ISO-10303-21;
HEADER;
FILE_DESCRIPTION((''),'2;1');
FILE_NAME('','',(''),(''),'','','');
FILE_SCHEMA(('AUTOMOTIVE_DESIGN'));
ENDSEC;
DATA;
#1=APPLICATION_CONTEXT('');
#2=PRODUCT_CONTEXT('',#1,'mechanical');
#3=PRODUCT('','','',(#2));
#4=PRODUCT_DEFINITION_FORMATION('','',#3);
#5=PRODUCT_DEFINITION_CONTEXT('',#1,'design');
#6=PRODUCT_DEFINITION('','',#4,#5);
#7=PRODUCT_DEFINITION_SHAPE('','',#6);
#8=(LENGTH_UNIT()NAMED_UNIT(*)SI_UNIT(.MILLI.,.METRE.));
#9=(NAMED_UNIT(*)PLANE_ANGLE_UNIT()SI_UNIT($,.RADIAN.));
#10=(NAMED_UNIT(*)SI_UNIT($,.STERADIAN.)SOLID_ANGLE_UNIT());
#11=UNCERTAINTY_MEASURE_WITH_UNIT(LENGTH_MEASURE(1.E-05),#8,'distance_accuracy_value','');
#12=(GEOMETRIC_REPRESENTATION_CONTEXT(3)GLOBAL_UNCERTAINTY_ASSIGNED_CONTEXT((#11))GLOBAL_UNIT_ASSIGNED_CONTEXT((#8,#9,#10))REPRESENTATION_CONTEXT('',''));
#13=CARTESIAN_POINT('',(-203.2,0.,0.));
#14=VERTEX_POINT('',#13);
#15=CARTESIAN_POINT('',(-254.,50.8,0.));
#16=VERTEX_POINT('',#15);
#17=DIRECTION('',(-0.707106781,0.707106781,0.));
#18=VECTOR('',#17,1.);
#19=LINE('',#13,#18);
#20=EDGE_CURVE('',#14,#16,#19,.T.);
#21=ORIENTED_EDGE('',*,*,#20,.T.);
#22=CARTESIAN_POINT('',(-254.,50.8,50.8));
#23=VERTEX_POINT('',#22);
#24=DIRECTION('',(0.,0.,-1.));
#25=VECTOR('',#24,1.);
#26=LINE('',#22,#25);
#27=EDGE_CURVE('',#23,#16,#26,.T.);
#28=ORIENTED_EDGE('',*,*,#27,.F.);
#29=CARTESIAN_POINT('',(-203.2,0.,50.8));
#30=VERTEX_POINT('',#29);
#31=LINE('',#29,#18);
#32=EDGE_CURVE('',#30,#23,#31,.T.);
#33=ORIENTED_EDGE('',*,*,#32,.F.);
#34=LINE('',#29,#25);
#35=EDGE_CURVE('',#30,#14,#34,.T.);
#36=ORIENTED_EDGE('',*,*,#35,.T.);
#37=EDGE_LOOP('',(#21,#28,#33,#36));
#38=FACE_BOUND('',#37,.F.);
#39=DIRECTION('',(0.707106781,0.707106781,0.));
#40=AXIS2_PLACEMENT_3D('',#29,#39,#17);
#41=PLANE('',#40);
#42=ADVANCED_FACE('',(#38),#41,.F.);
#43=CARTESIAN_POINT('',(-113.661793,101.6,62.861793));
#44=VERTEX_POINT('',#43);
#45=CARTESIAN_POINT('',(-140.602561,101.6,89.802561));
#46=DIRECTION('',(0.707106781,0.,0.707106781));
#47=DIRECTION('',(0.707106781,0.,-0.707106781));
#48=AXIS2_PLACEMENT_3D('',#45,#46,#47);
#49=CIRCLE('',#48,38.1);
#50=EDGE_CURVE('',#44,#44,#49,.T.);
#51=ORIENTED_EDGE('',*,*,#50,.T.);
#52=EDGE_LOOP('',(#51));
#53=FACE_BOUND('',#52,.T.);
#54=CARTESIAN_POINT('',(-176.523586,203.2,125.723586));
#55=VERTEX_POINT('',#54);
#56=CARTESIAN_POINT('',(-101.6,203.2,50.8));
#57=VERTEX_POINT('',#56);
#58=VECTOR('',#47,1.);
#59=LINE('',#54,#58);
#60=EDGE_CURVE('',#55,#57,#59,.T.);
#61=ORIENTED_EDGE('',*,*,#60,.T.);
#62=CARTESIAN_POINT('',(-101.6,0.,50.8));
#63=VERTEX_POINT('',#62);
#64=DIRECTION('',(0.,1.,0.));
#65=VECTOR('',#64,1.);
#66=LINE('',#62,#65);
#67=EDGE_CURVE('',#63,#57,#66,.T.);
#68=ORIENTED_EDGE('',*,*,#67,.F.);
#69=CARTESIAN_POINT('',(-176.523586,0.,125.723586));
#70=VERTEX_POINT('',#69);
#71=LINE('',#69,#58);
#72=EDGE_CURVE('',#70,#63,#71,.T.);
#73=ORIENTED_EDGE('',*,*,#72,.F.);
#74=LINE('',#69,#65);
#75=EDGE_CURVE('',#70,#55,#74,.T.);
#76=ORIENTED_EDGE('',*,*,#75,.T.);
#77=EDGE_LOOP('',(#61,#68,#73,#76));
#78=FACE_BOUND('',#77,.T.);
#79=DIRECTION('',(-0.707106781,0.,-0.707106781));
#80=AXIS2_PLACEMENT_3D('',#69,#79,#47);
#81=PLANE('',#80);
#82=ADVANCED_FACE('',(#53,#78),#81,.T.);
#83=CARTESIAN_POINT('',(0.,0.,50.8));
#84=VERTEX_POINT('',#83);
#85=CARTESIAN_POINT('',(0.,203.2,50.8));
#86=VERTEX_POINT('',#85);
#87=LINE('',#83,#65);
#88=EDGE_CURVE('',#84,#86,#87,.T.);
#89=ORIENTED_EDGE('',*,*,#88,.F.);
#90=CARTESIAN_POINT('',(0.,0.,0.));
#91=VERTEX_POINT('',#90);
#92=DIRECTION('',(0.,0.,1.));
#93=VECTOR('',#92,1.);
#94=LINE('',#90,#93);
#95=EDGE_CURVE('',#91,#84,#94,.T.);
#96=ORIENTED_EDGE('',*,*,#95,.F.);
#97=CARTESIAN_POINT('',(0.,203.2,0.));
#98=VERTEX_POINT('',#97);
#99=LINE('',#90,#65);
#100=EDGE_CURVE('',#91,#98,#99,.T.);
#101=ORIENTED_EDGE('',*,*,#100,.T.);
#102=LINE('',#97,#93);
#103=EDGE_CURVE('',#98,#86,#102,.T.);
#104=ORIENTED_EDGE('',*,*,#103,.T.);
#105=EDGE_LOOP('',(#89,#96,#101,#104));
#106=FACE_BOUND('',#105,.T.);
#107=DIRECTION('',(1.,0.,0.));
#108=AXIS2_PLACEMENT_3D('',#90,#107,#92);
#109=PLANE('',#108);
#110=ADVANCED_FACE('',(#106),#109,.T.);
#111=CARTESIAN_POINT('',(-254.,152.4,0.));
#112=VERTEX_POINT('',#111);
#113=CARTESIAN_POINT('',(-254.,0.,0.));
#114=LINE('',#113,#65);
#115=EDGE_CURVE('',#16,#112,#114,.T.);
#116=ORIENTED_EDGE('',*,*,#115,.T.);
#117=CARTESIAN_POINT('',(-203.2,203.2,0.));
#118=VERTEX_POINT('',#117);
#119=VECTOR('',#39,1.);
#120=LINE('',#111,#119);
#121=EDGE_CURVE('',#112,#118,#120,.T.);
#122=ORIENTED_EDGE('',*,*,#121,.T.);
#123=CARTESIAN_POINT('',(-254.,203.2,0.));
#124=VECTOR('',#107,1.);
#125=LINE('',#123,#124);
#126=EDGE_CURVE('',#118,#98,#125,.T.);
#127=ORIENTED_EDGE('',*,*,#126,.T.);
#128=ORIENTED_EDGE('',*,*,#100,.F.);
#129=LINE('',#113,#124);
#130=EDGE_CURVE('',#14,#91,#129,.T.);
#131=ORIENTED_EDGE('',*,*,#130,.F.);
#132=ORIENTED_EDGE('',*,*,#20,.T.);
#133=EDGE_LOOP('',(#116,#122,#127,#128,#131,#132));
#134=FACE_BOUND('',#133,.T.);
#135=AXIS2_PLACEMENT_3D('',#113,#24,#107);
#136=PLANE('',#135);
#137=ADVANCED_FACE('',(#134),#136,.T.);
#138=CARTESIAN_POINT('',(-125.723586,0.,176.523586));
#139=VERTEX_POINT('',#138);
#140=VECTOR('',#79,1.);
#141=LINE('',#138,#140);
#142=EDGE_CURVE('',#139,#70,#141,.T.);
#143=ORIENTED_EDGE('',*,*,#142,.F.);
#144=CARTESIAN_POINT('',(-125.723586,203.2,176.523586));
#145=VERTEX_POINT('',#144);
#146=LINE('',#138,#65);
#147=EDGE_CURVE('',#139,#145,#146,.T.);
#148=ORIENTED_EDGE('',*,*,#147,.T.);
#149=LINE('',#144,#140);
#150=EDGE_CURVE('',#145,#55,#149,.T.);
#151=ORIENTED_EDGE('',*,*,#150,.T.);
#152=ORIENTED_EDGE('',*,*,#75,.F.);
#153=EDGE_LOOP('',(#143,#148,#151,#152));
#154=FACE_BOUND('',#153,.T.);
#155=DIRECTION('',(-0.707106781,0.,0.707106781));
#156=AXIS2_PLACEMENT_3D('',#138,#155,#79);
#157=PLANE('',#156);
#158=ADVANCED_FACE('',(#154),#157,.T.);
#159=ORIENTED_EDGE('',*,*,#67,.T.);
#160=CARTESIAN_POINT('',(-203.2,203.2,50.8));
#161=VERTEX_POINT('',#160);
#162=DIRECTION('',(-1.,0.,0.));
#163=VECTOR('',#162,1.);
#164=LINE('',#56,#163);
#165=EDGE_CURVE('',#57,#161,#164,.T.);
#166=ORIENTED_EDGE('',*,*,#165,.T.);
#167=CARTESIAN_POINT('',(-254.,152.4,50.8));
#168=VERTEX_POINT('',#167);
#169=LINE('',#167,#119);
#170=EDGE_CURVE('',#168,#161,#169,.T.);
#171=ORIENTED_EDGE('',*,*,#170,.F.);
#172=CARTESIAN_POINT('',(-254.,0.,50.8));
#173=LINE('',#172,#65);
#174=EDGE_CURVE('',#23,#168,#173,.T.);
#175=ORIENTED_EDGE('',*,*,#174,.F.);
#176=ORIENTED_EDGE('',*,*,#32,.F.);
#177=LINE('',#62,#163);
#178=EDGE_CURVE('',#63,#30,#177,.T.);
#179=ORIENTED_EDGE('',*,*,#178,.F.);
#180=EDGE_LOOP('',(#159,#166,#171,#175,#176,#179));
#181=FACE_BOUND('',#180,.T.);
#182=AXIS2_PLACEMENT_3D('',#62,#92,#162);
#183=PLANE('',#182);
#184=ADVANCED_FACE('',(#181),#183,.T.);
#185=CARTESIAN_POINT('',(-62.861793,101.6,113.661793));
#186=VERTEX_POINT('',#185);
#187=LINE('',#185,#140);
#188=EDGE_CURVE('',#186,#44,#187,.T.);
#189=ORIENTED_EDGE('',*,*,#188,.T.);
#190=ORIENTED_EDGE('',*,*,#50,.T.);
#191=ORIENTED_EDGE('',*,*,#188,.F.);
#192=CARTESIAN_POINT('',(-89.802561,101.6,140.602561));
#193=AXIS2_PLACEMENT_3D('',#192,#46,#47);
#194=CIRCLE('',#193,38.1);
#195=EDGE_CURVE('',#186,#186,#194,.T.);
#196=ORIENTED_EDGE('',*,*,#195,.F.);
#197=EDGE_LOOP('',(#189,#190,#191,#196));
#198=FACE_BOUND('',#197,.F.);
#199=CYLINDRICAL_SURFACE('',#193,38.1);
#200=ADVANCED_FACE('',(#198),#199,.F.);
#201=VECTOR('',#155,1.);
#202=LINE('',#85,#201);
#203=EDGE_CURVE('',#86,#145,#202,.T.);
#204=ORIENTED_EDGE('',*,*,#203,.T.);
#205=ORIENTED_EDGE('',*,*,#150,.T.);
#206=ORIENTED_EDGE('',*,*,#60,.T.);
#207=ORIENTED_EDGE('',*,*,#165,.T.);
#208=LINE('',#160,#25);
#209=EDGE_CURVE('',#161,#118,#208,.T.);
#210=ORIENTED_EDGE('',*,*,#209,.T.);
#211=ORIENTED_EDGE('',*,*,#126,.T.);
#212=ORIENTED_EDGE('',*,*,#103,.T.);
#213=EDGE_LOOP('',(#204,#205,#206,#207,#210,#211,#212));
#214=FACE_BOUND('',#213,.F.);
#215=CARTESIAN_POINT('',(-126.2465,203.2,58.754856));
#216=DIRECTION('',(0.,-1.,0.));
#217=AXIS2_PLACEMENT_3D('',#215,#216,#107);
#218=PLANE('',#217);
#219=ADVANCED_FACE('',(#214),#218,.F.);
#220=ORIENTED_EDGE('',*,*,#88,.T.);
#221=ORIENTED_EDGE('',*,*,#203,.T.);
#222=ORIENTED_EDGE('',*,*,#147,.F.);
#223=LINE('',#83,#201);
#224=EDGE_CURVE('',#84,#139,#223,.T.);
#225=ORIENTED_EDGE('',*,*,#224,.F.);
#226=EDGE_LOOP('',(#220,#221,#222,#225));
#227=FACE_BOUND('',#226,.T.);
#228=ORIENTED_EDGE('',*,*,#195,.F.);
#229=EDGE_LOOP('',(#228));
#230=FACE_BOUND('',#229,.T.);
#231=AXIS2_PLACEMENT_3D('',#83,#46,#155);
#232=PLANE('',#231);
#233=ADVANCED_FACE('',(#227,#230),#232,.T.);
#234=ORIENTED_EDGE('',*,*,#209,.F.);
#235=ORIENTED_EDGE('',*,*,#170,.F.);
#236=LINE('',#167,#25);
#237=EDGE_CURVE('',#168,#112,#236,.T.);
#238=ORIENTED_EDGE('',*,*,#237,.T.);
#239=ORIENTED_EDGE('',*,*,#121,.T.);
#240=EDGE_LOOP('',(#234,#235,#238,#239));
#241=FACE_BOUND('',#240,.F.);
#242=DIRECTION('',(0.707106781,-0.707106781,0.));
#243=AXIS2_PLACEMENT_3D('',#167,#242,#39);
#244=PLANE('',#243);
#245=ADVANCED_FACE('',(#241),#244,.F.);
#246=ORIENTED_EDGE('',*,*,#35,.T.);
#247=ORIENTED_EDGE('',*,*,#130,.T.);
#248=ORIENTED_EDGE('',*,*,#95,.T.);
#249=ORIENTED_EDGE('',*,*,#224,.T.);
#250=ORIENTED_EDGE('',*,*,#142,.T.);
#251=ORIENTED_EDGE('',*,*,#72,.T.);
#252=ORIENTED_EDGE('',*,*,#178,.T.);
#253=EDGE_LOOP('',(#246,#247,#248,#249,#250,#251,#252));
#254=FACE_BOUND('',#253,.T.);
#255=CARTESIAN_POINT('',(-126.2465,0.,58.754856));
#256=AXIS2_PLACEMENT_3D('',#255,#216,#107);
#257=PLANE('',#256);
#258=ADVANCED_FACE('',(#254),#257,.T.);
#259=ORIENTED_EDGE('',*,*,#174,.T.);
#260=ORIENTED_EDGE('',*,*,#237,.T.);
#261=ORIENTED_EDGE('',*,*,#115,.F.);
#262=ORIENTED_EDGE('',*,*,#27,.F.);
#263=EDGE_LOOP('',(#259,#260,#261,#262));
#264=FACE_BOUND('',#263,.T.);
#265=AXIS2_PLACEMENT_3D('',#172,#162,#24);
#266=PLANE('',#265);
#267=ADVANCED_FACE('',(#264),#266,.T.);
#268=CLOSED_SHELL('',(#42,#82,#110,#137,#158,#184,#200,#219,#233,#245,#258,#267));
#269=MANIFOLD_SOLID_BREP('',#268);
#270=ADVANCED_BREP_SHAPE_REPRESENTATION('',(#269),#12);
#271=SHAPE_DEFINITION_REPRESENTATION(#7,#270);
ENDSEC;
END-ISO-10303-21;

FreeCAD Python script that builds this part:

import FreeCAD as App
import Part
import Sketcher

V = App.Vector
Q = App.Units.Quantity


def add_polygon(sketch, points):
    """Adds a closed chain of lines whose ends are joined by coincident constraints."""
    first, n = sketch.GeometryCount, len(points)
    for a, b in zip(points, points[1:] + points[:1]):
        sketch.addGeometry(Part.LineSegment(App.Vector(*a, 0), App.Vector(*b, 0)), False)
    for i in range(n):
        sketch.addConstraint(Sketcher.Constraint("Coincident", first + i, 2, first + (i + 1) % n, 1))

doc = App.newDocument("Part")
body = doc.addObject("PartDesign::Body", "Body")

sketch1 = body.newObject("Sketcher::SketchObject", "Sketch")
sketch1.AttachmentSupport = (doc.getObject("XZ_Plane"), [""])
sketch1.MapMode = "FlatFace"
add_polygon(sketch1, [(-254, 0), (0, 0), (0, 51), (-126, 177), (-177, 126), (-102, 51), (-254, 51)])
sketch1.addConstraint([
    Sketcher.Constraint("Horizontal", 0),
    Sketcher.Constraint("Vertical", 1),
    Sketcher.Constraint("Horizontal", 5),
    Sketcher.Constraint("Vertical", 6),
    Sketcher.Constraint("Coincident", 0, 2, -1, 1),
    Sketcher.Constraint("Perpendicular", 2, 3),
    Sketcher.Constraint("Perpendicular", 3, 4),
    Sketcher.Constraint("Horizontal", 1, 2, 4, 2),
    Sketcher.Constraint("DistanceX", 0, 1, 0, 2, Q("10 in")),
    Sketcher.Constraint("DistanceX", 5, 2, 5, 1, Q("6 in")),
    Sketcher.Constraint("DistanceY", 1, 1, 1, 2, Q("2 in")),
    Sketcher.Constraint("Distance", 2, Q("7 in")),
    Sketcher.Constraint("Angle", 2, Q("135 deg")),
])
pad1 = body.newObject("PartDesign::Pad", "Pad")
pad1.Profile = sketch1
pad1.Length = Q("8 in")
pad1.Reversed = True

sketch2 = body.newObject("Sketcher::SketchObject", "Sketch001")
sketch2.Placement = App.Placement(V(25.4, 0, 25.4), App.Rotation(V(0.707106781, 0, -0.707106781), V(0, 0.999999999, 0), V(0.707106781, 0, 0.707106781), "ZXY"))
sketch2.addGeometry(Part.Circle(V(-163, 102, 0), V(0, 0, 1), 38), False)
sketch2.addConstraint([
    Sketcher.Constraint("Diameter", 0, Q("3 in")),
    Sketcher.Constraint("DistanceY", -1, 1, 0, 3, Q("4 in")),
    Sketcher.Constraint("DistanceX", 0, 3, -1, 1, Q("162.921024 mm")),
])
pocket1 = body.newObject("PartDesign::Pocket", "Pocket")
pocket1.Profile = sketch2
pocket1.Length = Q("3 in")

sketch3 = body.newObject("Sketcher::SketchObject", "Sketch002")
sketch3.AttachmentSupport = (doc.getObject("XY_Plane"), [""])
sketch3.MapMode = "FlatFace"
sketch3.AttachmentOffset = App.Placement(V(0, 0, 2 * 25.4), App.Rotation())
add_polygon(sketch3, [(-254, 203), (-254, 152), (-203, 203)])
add_polygon(sketch3, [(-254, 51), (-254, 0), (-203, 0)])
sketch3.addConstraint([
    Sketcher.Constraint("Vertical", 0),
    Sketcher.Constraint("Horizontal", 2),
    Sketcher.Constraint("Vertical", 3),
    Sketcher.Constraint("Horizontal", 4),
    Sketcher.Constraint("PointOnObject", 3, 2, -1),
    Sketcher.Constraint("Perpendicular", 1, 5),
    Sketcher.Constraint("Vertical", 2, 2, 3, 2),
    Sketcher.Constraint("Vertical", 1, 2, 4, 2),
    Sketcher.Constraint("Equal", 4, 0),
    Sketcher.Constraint("DistanceX", 2, 2, 2, 1, Q("2 in")),
    Sketcher.Constraint("DistanceX", 0, 2, -1, 1, Q("10 in")),
    Sketcher.Constraint("DistanceY", -1, 1, 0, 2, Q("6 in")),
])
pocket2 = body.newObject("PartDesign::Pocket", "Pocket001")
pocket2.Profile = sketch3
pocket2.Length = Q("2 in")

doc.recompute()
